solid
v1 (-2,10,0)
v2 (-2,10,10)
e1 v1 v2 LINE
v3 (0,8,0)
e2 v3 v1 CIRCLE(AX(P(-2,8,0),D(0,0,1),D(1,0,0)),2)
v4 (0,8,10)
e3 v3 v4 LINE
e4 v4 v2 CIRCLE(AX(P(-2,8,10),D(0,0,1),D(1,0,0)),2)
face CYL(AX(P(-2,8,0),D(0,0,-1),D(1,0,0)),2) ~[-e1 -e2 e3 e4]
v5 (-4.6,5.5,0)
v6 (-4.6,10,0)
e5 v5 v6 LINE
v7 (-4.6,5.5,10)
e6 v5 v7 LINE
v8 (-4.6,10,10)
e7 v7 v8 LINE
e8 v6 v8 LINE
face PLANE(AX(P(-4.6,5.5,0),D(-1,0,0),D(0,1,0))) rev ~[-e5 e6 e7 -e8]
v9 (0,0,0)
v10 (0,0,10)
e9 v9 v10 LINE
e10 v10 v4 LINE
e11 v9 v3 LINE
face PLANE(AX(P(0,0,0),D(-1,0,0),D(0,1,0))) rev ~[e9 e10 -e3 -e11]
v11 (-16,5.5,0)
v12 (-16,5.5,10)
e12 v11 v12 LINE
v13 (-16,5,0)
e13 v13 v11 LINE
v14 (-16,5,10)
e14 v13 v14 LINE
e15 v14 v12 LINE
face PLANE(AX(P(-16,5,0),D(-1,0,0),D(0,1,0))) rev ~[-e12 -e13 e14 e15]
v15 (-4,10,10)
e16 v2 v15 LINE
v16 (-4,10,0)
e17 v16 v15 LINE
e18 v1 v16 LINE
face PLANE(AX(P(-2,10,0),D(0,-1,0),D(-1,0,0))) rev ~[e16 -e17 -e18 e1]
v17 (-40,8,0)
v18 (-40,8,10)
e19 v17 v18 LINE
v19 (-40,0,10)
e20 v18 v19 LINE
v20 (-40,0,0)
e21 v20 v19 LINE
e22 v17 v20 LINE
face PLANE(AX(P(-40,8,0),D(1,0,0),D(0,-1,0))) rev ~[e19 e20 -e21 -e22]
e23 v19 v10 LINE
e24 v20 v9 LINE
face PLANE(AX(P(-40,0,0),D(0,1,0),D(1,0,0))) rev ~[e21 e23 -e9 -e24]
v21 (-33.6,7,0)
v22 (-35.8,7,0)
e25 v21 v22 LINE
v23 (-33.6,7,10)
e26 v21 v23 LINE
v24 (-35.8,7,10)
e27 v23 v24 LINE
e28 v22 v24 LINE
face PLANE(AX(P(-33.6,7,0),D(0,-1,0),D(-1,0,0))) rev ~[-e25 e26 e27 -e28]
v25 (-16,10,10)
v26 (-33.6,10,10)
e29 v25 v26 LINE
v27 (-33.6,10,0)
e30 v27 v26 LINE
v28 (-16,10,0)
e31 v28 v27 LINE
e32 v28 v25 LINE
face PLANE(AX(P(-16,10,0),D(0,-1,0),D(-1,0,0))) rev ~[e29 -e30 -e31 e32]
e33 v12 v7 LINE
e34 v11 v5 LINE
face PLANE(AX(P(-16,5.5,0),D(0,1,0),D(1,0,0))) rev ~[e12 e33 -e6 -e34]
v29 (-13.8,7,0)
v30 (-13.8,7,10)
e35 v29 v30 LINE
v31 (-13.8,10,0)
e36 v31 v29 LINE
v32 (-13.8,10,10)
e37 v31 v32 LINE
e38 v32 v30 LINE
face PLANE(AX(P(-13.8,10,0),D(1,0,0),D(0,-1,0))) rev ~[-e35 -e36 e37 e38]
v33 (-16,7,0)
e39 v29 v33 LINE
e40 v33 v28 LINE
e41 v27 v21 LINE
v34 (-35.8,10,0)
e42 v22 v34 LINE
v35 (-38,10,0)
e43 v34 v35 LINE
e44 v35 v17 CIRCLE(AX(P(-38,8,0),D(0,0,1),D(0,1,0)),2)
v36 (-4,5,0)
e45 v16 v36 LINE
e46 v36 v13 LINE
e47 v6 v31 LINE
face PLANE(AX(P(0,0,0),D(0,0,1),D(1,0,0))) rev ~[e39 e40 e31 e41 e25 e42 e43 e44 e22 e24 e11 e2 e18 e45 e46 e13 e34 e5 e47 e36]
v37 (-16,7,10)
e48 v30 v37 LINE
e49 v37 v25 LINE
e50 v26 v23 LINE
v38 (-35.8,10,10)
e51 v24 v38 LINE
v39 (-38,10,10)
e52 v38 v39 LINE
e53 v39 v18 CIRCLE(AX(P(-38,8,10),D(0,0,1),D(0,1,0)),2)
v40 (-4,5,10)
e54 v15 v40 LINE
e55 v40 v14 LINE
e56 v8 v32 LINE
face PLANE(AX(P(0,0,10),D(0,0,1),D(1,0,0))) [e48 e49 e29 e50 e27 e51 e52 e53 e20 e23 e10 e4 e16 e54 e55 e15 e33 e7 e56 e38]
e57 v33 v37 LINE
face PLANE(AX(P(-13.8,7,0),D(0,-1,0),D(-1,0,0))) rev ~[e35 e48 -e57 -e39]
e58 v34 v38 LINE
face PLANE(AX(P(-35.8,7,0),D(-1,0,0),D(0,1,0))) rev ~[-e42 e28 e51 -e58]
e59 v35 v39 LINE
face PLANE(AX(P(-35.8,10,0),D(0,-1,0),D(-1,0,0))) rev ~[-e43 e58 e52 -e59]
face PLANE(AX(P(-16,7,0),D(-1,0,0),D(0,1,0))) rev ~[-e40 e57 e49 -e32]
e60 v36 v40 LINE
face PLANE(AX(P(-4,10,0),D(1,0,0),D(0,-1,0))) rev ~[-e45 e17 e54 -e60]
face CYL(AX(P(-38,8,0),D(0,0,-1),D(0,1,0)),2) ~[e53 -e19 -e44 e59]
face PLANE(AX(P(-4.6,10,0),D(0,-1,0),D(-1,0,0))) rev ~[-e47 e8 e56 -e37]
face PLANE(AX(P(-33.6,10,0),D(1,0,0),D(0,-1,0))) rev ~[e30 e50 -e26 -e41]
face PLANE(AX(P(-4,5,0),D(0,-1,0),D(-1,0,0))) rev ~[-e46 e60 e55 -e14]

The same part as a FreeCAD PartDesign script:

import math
import FreeCAD as App
import Part
import Sketcher
from FreeCAD import Vector
Q = App.Units.Quantity

doc = App.newDocument("Part")
body = doc.addObject("PartDesign::Body", "Body")

# Sketch on XY plane
sketch1 = body.newObject("Sketcher::SketchObject", "Sketch")
sketch1.AttachmentSupport = (doc.getObject("XY_Plane"), [""])
sketch1.MapMode = "FlatFace"
sketch1.addGeometry([
    Part.LineSegment(Vector(-40, 0, 0), Vector(0, 0, 0)),  # 0
    Part.LineSegment(Vector(0, 0, 0), Vector(0, 8, 0)),  # 1
    Part.ArcOfCircle(Part.Circle(Vector(-2, 8, 0), Vector(0, 0, 1), 2), math.radians(0), math.radians(90)),  # 2
    Part.LineSegment(Vector(-2, 10, 0), Vector(-4, 10, 0)),  # 3
    Part.LineSegment(Vector(-4, 10, 0), Vector(-4, 5, 0)),  # 4
    Part.LineSegment(Vector(-4, 5, 0), Vector(-16, 5, 0)),  # 5
    Part.LineSegment(Vector(-16, 5, 0), Vector(-16, 5.5, 0)),  # 6
    Part.LineSegment(Vector(-16, 5.5, 0), Vector(-4.6, 5.5, 0)),  # 7
    Part.LineSegment(Vector(-4.6, 5.5, 0), Vector(-4.6, 10, 0)),  # 8
    Part.LineSegment(Vector(-4.6, 10, 0), Vector(-13.8, 10, 0)),  # 9
    Part.LineSegment(Vector(-13.8, 10, 0), Vector(-13.8, 7, 0)),  # 10
    Part.LineSegment(Vector(-13.8, 7, 0), Vector(-16, 7, 0)),  # 11
    Part.LineSegment(Vector(-16, 7, 0), Vector(-16, 10, 0)),  # 12
    Part.LineSegment(Vector(-16, 10, 0), Vector(-33.6, 10, 0)),  # 13
    Part.LineSegment(Vector(-33.6, 10, 0), Vector(-33.6, 7, 0)),  # 14
    Part.LineSegment(Vector(-33.6, 7, 0), Vector(-35.8, 7, 0)),  # 15
    Part.LineSegment(Vector(-35.8, 7, 0), Vector(-35.8, 10, 0)),  # 16
    Part.LineSegment(Vector(-35.8, 10, 0), Vector(-38, 10, 0)),  # 17
    Part.ArcOfCircle(Part.Circle(Vector(-38, 8, 0), Vector(0, 0, 1), 2), math.radians(90), math.radians(180)),  # 18
    Part.LineSegment(Vector(-40, 8, 0), Vector(-40, 0, 0)),  # 19
], False)
sketch1.addConstraint([
    Sketcher.Constraint("Coincident", 0, 2, 1, 1),
    Sketcher.Constraint("Tangent", 1, 2, 2, 1),
    Sketcher.Constraint("Tangent", 2, 2, 3, 1),
    Sketcher.Constraint("Coincident", 3, 2, 4, 1),
    Sketcher.Constraint("Coincident", 4, 2, 5, 1),
    Sketcher.Constraint("Coincident", 5, 2, 6, 1),
    Sketcher.Constraint("Coincident", 6, 2, 7, 1),
    Sketcher.Constraint("Coincident", 7, 2, 8, 1),
    Sketcher.Constraint("Coincident", 8, 2, 9, 1),
    Sketcher.Constraint("Coincident", 9, 2, 10, 1),
    Sketcher.Constraint("Coincident", 10, 2, 11, 1),
    Sketcher.Constraint("Coincident", 11, 2, 12, 1),
    Sketcher.Constraint("Coincident", 12, 2, 13, 1),
    Sketcher.Constraint("Coincident", 13, 2, 14, 1),
    Sketcher.Constraint("Coincident", 14, 2, 15, 1),
    Sketcher.Constraint("Coincident", 15, 2, 16, 1),
    Sketcher.Constraint("Coincident", 16, 2, 17, 1),
    Sketcher.Constraint("Tangent", 17, 2, 18, 1),
    Sketcher.Constraint("Tangent", 18, 2, 19, 1),
    Sketcher.Constraint("Coincident", 19, 2, 0, 1),
    Sketcher.Constraint("Horizontal", 0),
    Sketcher.Constraint("Vertical", 1),
    Sketcher.Constraint("Horizontal", 3),
    Sketcher.Constraint("Vertical", 4),
    Sketcher.Constraint("Horizontal", 5),
    Sketcher.Constraint("Vertical", 6),
    Sketcher.Constraint("Horizontal", 7),
    Sketcher.Constraint("Vertical", 8),
    Sketcher.Constraint("Horizontal", 9),
    Sketcher.Constraint("Vertical", 10),
    Sketcher.Constraint("Horizontal", 11),
    Sketcher.Constraint("Vertical", 12),
    Sketcher.Constraint("Horizontal", 13),
    Sketcher.Constraint("Vertical", 14),
    Sketcher.Constraint("Horizontal", 15),
    Sketcher.Constraint("Vertical", 16),
    Sketcher.Constraint("Horizontal", 17),
    Sketcher.Constraint("Vertical", 19),
    Sketcher.Constraint("Coincident", 0, 2, -1, 1),
    Sketcher.Constraint("Equal", 2, 18),
    Sketcher.Constraint("Horizontal", 2, 3, 18, 3),
    Sketcher.Constraint("Horizontal", 3, 2, 8, 2),
    Sketcher.Constraint("Horizontal", 9, 2, 12, 2),
    Sketcher.Constraint("Horizontal", 11, 2, 14, 2),
    Sketcher.Constraint("Vertical", 6, 2, 11, 2),
    Sketcher.Constraint("Equal", 11, 15),
    Sketcher.Constraint("Equal", 15, 17),
    Sketcher.Constraint("Radius", 2, Q("2 mm")),
    Sketcher.Constraint("DistanceX", 0, 1, 0, 2, Q("40 mm")),
    Sketcher.Constraint("DistanceX", 3, 2, 3, 1, Q("2 mm")),
    Sketcher.Constraint("DistanceX", 5, 2, 5, 1, Q("12 mm")),
    Sketcher.Constraint("DistanceY", 4, 2, 4, 1, Q("5 mm")),
    Sketcher.Constraint("DistanceY", 10, 2, 10, 1, Q("3 mm")),
    Sketcher.Constraint("DistanceX", 11, 2, 11, 1, Q("2.2 mm")),
    Sketcher.Constraint("DistanceY", 6, 1, 6, 2, Q("0.5 mm")),
    Sketcher.Constraint("DistanceY", -1, 1, 2, 2, Q("10 mm")),
    Sketcher.Constraint("DistanceX", 7, 2, 4, 2, Q("0.6 mm")),
])
pad1 = body.newObject("PartDesign::Pad", "Pad")
pad1.Profile = sketch1
pad1.Length = 10

doc.recompute()
